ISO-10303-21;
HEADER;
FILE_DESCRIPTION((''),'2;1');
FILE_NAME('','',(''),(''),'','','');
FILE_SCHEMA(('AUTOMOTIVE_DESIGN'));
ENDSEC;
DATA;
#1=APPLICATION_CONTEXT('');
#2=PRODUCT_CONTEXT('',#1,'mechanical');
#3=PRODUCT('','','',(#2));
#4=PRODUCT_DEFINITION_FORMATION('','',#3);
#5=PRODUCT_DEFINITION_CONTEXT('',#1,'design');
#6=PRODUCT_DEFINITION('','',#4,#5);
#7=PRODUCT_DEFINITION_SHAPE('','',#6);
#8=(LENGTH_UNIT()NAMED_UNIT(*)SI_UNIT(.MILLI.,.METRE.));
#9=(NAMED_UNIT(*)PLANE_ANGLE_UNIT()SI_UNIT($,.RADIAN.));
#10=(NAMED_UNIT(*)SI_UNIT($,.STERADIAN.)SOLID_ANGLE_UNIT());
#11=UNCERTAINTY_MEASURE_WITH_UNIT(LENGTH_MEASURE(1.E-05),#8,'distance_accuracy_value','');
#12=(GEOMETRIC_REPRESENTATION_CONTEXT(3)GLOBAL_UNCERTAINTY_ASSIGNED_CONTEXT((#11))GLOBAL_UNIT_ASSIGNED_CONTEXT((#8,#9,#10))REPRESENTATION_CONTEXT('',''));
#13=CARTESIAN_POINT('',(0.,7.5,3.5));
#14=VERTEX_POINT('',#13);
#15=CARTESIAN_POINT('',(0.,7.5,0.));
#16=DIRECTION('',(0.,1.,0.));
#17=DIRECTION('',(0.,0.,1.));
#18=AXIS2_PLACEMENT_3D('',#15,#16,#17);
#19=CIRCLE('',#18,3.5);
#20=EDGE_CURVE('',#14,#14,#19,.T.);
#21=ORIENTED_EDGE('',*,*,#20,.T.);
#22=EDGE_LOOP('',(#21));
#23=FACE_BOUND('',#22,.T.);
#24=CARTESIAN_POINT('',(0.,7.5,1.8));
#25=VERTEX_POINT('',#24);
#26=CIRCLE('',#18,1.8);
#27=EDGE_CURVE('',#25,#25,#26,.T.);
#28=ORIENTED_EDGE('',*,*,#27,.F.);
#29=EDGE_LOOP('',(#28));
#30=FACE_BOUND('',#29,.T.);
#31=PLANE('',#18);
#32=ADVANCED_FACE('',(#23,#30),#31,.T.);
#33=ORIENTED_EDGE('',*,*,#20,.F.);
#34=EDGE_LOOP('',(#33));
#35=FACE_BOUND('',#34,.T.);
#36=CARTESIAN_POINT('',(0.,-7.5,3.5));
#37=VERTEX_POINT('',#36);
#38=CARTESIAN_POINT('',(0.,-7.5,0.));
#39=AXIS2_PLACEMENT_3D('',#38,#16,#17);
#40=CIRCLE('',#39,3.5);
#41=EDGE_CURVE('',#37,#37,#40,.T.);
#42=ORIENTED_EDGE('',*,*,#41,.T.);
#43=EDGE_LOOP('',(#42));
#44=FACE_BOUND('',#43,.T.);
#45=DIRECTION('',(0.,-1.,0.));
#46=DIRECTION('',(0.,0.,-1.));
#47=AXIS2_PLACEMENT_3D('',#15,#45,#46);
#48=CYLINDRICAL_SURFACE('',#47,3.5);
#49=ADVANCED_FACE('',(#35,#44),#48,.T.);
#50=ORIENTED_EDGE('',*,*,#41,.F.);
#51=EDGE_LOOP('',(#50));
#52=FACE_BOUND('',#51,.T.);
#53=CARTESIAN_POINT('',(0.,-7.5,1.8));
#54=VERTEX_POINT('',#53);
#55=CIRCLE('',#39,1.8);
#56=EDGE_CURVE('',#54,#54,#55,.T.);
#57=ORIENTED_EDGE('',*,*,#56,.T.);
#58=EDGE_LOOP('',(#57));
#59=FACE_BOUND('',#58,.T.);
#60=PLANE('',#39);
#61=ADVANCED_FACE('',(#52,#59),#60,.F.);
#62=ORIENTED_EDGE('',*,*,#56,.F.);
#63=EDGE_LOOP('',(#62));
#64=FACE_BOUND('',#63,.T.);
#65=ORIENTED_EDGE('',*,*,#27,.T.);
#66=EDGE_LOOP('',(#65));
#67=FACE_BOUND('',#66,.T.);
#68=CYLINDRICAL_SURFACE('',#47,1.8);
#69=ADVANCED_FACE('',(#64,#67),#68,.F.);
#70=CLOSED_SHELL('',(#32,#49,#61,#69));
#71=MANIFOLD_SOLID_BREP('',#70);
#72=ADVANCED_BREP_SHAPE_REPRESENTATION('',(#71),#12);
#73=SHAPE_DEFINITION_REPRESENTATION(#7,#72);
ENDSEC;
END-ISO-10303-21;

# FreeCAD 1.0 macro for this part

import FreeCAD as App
import Part
import Sketcher
from FreeCAD import Vector

doc = App.newDocument("Part")
params = doc.addObject("Spreadsheet::Sheet", "Params")
for row, (alias, value) in enumerate([
    ("sketch1_diameter", "7 mm"),
    ("sketch1_diameter2", "3.6 mm"),
    ("pad1_length", "15 mm"),
], start=1):
    params.set(f"A{row}", alias)
    params.set(f"B{row}", "=" + value)
    params.setAlias(f"B{row}", alias)

body = doc.addObject("PartDesign::Body", "Body")

sketch1 = doc.addObject("Sketcher::SketchObject", "Sketch")
body.addObject(sketch1)
sketch1.AttachmentSupport = (doc.XZ_Plane, [""])
sketch1.MapMode = "FlatFace"
sketch1.addGeometry([
    Part.Circle(Vector(0, 0, 0), Vector(0, 0, 1), 3.5),
    Part.Circle(Vector(0, 0, 0), Vector(0, 0, 1), 1.8),
], False)
sketch1.addConstraint([
    Sketcher.Constraint("Coincident", 0, 3, -1, 1),
    Sketcher.Constraint("Coincident", 1, 3, -1, 1),
    Sketcher.Constraint("Diameter", 0, 7.0),
    Sketcher.Constraint("Diameter", 1, 3.6),
])
sketch1.setExpression("Constraints[2]", "Params.sketch1_diameter")
sketch1.setExpression("Constraints[3]", "Params.sketch1_diameter2")
pad1 = doc.addObject("PartDesign::Pad", "Pad")
body.addObject(pad1)
pad1.Profile = sketch1
pad1.setExpression("Length", "Params.pad1_length")
pad1.Midplane = True

doc.recompute()
